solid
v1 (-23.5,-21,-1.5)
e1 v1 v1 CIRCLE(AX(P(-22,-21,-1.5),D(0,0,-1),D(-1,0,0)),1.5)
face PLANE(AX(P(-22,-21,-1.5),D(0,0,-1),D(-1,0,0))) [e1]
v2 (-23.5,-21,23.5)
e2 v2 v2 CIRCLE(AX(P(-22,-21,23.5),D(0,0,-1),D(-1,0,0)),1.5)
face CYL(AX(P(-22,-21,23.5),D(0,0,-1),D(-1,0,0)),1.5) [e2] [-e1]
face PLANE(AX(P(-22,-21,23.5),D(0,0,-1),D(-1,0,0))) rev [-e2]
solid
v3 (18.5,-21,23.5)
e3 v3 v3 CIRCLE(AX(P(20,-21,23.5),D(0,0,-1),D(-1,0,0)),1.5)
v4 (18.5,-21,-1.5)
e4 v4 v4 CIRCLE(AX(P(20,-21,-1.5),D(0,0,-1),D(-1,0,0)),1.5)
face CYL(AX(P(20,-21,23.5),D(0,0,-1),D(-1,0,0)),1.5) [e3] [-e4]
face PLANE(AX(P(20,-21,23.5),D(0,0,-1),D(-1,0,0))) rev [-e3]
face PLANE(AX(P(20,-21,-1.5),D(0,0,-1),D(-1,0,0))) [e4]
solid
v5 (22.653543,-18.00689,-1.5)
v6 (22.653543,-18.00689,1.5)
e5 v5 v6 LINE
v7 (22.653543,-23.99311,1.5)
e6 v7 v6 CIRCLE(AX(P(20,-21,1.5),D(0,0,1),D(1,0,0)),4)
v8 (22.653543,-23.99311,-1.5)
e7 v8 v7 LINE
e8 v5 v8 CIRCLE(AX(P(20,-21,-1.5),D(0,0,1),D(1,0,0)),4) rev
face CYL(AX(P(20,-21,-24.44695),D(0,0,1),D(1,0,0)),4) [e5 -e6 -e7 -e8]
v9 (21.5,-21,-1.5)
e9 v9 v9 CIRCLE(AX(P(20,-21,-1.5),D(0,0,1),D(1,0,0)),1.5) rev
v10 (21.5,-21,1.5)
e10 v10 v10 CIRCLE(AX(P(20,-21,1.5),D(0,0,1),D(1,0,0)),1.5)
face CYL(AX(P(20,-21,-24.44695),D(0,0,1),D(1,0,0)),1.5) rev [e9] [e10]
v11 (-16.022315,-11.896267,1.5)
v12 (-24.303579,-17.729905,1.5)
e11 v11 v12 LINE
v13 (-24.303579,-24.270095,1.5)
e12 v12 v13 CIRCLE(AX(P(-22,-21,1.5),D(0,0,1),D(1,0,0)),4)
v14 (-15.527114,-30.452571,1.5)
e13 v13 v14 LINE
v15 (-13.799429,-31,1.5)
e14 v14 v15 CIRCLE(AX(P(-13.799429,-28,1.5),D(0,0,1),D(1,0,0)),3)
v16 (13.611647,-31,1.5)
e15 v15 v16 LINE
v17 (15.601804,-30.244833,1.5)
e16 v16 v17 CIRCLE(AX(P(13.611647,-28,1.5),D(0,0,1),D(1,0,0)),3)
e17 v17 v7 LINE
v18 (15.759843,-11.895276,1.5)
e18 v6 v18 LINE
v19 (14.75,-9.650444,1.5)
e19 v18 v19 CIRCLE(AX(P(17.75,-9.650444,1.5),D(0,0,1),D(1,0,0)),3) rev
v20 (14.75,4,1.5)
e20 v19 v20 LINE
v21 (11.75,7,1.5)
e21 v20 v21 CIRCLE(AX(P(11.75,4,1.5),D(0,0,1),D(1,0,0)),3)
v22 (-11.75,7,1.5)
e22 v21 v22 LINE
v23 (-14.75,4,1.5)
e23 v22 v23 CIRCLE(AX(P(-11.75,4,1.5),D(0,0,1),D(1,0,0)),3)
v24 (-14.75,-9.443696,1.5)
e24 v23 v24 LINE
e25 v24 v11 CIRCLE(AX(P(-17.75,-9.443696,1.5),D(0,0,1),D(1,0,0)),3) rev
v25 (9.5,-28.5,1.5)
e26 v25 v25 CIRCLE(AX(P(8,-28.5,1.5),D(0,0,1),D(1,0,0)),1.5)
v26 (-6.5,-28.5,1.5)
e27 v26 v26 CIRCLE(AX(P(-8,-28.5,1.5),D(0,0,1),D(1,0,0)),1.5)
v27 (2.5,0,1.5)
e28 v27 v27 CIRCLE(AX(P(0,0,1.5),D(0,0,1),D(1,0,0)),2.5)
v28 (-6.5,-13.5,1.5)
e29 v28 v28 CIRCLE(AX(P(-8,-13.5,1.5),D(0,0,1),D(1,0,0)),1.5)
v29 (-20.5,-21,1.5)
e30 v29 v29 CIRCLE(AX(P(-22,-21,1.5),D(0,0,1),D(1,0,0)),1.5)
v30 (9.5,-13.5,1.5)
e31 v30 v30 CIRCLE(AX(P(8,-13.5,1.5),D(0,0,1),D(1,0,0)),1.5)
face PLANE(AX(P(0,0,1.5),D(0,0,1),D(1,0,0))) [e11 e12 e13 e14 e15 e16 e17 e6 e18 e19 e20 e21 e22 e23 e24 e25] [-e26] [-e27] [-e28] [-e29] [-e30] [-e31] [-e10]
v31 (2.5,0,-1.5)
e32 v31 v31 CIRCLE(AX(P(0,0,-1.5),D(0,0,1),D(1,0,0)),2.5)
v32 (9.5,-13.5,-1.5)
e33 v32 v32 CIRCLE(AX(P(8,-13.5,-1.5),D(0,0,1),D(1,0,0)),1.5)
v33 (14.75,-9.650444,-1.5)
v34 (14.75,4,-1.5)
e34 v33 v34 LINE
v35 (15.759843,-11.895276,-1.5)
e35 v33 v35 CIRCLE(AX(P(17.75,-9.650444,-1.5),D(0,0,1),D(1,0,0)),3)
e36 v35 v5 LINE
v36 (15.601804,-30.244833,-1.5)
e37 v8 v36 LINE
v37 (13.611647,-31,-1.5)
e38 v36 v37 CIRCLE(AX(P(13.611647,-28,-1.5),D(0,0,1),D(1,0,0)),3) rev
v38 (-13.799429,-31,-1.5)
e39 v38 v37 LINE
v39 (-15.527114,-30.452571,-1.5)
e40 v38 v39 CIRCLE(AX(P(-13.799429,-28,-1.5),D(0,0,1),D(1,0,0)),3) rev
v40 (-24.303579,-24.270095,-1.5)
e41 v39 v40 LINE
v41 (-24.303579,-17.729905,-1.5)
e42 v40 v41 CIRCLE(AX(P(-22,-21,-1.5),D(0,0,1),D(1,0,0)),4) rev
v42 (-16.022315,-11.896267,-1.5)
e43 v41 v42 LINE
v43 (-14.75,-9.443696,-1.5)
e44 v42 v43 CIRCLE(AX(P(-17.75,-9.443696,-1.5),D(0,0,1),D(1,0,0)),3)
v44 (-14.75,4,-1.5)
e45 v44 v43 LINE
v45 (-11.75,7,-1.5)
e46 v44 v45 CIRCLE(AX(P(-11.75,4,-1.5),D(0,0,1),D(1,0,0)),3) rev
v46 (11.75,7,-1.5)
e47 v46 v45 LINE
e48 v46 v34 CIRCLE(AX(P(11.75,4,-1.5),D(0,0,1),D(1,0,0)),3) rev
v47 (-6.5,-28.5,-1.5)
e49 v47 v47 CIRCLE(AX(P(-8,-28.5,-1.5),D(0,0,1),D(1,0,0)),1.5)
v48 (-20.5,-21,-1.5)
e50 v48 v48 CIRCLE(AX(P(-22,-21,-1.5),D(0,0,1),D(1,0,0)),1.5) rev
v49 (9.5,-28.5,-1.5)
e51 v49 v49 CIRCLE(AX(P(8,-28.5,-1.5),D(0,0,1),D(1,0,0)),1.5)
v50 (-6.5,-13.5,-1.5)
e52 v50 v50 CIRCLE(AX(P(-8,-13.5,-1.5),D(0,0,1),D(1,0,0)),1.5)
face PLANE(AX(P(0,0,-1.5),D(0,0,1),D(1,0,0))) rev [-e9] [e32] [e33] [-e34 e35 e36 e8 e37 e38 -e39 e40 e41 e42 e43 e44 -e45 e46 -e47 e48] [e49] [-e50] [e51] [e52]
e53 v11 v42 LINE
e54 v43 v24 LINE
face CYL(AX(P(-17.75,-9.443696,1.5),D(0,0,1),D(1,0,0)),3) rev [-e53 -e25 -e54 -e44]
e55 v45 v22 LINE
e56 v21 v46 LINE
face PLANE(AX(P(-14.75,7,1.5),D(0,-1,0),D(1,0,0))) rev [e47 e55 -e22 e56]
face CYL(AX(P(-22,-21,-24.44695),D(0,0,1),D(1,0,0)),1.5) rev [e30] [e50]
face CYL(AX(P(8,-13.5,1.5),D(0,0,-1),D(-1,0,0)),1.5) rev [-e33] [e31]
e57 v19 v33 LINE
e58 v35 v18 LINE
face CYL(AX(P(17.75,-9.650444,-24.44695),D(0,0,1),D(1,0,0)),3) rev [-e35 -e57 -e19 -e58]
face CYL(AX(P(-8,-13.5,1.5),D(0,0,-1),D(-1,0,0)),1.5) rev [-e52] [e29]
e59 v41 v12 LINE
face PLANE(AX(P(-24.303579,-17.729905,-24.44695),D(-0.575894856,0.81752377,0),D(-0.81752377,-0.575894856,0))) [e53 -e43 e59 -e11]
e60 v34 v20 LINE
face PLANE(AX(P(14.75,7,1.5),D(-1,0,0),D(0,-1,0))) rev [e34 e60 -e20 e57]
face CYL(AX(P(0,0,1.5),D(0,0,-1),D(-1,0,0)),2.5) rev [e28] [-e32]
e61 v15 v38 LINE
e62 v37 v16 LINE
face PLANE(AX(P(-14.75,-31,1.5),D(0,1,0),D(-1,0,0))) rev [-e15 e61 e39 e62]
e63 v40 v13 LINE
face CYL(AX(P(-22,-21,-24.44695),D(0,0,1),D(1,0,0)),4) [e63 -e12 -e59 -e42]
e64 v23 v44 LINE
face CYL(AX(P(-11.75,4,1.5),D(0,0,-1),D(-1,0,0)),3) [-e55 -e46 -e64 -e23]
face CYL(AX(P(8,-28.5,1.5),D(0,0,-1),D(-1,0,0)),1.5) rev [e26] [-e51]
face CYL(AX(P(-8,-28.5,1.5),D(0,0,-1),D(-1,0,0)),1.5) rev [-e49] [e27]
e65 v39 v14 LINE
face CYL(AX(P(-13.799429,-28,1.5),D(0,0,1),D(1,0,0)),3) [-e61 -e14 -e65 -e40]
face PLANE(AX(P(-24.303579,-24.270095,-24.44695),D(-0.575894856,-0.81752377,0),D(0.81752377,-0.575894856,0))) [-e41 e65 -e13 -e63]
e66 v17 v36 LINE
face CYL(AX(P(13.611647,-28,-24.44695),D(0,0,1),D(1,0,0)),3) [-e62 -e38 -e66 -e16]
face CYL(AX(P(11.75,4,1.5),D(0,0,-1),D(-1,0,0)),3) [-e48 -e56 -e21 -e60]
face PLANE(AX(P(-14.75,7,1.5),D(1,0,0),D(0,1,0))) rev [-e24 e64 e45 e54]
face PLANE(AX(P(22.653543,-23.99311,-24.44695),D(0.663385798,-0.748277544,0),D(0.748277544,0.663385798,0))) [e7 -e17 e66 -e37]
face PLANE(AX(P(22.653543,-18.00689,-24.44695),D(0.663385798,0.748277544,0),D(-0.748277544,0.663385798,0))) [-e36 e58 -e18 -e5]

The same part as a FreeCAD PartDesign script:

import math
import FreeCAD as App
import Part
import Sketcher
Q = App.Units.Quantity


def edges_at(feature, points):
    """Names of the edges that pass closest to the given points."""
    edges = feature.Shape.Edges
    near = lambda p: min(range(len(edges)), key=lambda i: edges[i].distToShape(Part.Vertex(*p))[0])
    return sorted({f"Edge{near(p) + 1}" for p in points})


def add_polygon(sketch, points):
    """Adds a closed chain of lines whose ends are joined by coincident constraints."""
    first, n = sketch.GeometryCount, len(points)
    for a, b in zip(points, points[1:] + points[:1]):
        sketch.addGeometry(Part.LineSegment(App.Vector(*a, 0), App.Vector(*b, 0)), False)
    for i in range(n):
        sketch.addConstraint(Sketcher.Constraint("Coincident", first + i, 2, first + (i + 1) % n, 1))

doc = App.newDocument("Part")
body = doc.addObject("PartDesign::Body", "Body")

# Sketch on XY plane
sketch1 = body.newObject("Sketcher::SketchObject", "Sketch")
sketch1.AttachmentSupport = (doc.getObject("XY_Plane"), [""])
sketch1.MapMode = "FlatFace"
add_polygon(sketch1, [(-14.8, 7), (-14.8, -31), (14.8, -31), (14.8, 7)])  # lines 0-3
sketch1.addGeometry(Part.Circle(App.Vector(-8, -28.5, 0), App.Vector(0, 0, 1), 1.5), False)  # 4
sketch1.addGeometry(Part.Circle(App.Vector(8, -28.5, 0), App.Vector(0, 0, 1), 1.5), False)  # 5
sketch1.addGeometry(Part.Circle(App.Vector(-8, -13.5, 0), App.Vector(0, 0, 1), 1.5), False)  # 6
sketch1.addGeometry(Part.Circle(App.Vector(8, -13.5, 0), App.Vector(0, 0, 1), 1.5), False)  # 7
sketch1.addGeometry(Part.Circle(App.Vector(0, 0, 0), App.Vector(0, 0, 1), 2.5), False)  # 8
sketch1.addConstraint(Sketcher.Constraint("Vertical", 0))
sketch1.addConstraint(Sketcher.Constraint("Horizontal", 1))
sketch1.addConstraint(Sketcher.Constraint("Vertical", 2))
sketch1.addConstraint(Sketcher.Constraint("Horizontal", 3))
sketch1.addConstraint(Sketcher.Constraint("Coincident", 8, 3, -1, 1))
sketch1.addConstraint(Sketcher.Constraint("Equal", 4, 5))
sketch1.addConstraint(Sketcher.Constraint("Equal", 5, 6))
sketch1.addConstraint(Sketcher.Constraint("Equal", 6, 7))
sketch1.addConstraint(Sketcher.Constraint("Symmetric", 4, 3, 5, 3, -2))
sketch1.addConstraint(Sketcher.Constraint("Symmetric", 6, 3, 7, 3, -2))
sketch1.addConstraint(Sketcher.Constraint("Vertical", 4, 3, 6, 3))
sketch1.addConstraint(Sketcher.Constraint("Diameter", 4, Q("3 mm")))
sketch1.addConstraint(Sketcher.Constraint("Diameter", 8, Q("5 mm")))
sketch1.addConstraint(Sketcher.Constraint("DistanceY", 0, 2, 0, 1, Q("38 mm")))
sketch1.addConstraint(Sketcher.Constraint("DistanceX", 1, 1, 1, 2, Q("29.5 mm")))
sketch1.addConstraint(Sketcher.Constraint("DistanceX", 4, 3, -1, 1, Q("8 mm")))
sketch1.addConstraint(Sketcher.Constraint("DistanceY", 0, 2, -1, 1, Q("31 mm")))
sketch1.addConstraint(Sketcher.Constraint("DistanceY", 4, 3, 6, 3, Q("15 mm")))
sketch1.addConstraint(Sketcher.Constraint("DistanceY", 4, 3, -1, 1, Q("28.5 mm")))
sketch1.addConstraint(Sketcher.Constraint("DistanceX", 0, 2, -1, 1, Q("14.75 mm")))
pad1 = body.newObject("PartDesign::Pad", "Pad")
pad1.Profile = sketch1
pad1.Length = 3
pad1.Midplane = True

# Sketch on XY plane
sketch2 = body.newObject("Sketcher::SketchObject", "Sketch001")
sketch2.AttachmentSupport = (doc.getObject("XY_Plane"), [""])
sketch2.MapMode = "FlatFace"
sketch2.AttachmentOffset = App.Placement(App.Vector(0, 0, 1.5), App.Rotation())
sketch2.addGeometry(Part.LineSegment(App.Vector(-24.3, -24.3, 0), App.Vector(-14.8, -31, 0)), False)
sketch2.addGeometry(Part.LineSegment(App.Vector(-14.8, -31, 0), App.Vector(-14.8, -11, 0)), False)
sketch2.addGeometry(Part.LineSegment(App.Vector(-14.8, -11, 0), App.Vector(-24.3, -17.7, 0)), False)
sketch2.addGeometry(Part.ArcOfCircle(Part.Circle(App.Vector(-22, -21, 0), App.Vector(0, 0, 1), 4), math.radians(125), math.radians(235)), False)
sketch2.addGeometry(Part.Circle(App.Vector(-22, -21, 0), App.Vector(0, 0, 1), 1.5), False)
sketch2.addGeometry(Part.LineSegment(App.Vector(14.8, -31, 0), App.Vector(22.7, -24, 0)), False)
sketch2.addGeometry(Part.ArcOfCircle(Part.Circle(App.Vector(20, -21, 0), App.Vector(0, 0, 1), 4), math.radians(-48), math.radians(48)), False)
sketch2.addGeometry(Part.LineSegment(App.Vector(22.7, -18, 0), App.Vector(14.8, -11, 0)), False)
sketch2.addGeometry(Part.LineSegment(App.Vector(14.8, -11, 0), App.Vector(14.8, -31, 0)), False)
sketch2.addGeometry(Part.Circle(App.Vector(20, -21, 0), App.Vector(0, 0, 1), 1.5), False)
sketch2.addConstraint(Sketcher.Constraint("Coincident", 0, 2, 1, 1))
sketch2.addConstraint(Sketcher.Constraint("Coincident", 1, 2, 2, 1))
sketch2.addConstraint(Sketcher.Constraint("Tangent", 2, 2, 3, 1))
sketch2.addConstraint(Sketcher.Constraint("Tangent", 3, 2, 0, 1))
sketch2.addConstraint(Sketcher.Constraint("Tangent", 5, 2, 6, 1))
sketch2.addConstraint(Sketcher.Constraint("Tangent", 6, 2, 7, 1))
sketch2.addConstraint(Sketcher.Constraint("Coincident", 7, 2, 8, 1))
sketch2.addConstraint(Sketcher.Constraint("Coincident", 8, 2, 5, 1))
sketch2.addConstraint(Sketcher.Constraint("Vertical", 1))
sketch2.addConstraint(Sketcher.Constraint("Vertical", 8))
sketch2.addConstraint(Sketcher.Constraint("Coincident", 4, 3, 3, 3))
sketch2.addConstraint(Sketcher.Constraint("Coincident", 9, 3, 6, 3))
sketch2.addConstraint(Sketcher.Constraint("Equal", 3, 6))
sketch2.addConstraint(Sketcher.Constraint("Equal", 4, 9))
sketch2.addConstraint(Sketcher.Constraint("Symmetric", 1, 2, 7, 2, -2))
sketch2.addConstraint(Sketcher.Constraint("Horizontal", 4, 3, 6, 3))
sketch2.addConstraint(Sketcher.Constraint("Horizontal", 0, 2, 8, 2))
sketch2.addConstraint(Sketcher.Constraint("Vertical", 2, 2, 3, 2))
sketch2.addConstraint(Sketcher.Constraint("Diameter", 4, Q("3 mm")))
sketch2.addConstraint(Sketcher.Constraint("Radius", 3, Q("4 mm")))
sketch2.addConstraint(Sketcher.Constraint("DistanceY", 1, 1, 1, 2, Q("20 mm")))
sketch2.addConstraint(Sketcher.Constraint("DistanceX", 3, 3, -1, 1, Q("22 mm")))
sketch2.addConstraint(Sketcher.Constraint("DistanceY", 3, 3, -1, 1, Q("21 mm")))
sketch2.addConstraint(Sketcher.Constraint("DistanceX", -1, 1, 6, 3, Q("20 mm")))
sketch2.addConstraint(Sketcher.Constraint("DistanceX", 1, 2, 7, 2, Q("29.5 mm")))
pad2 = body.newObject("PartDesign::Pad", "Pad001")
pad2.Profile = sketch2
pad2.Length = 3
pad2.Reversed = True
doc.recompute()

fillet = body.newObject("PartDesign::Fillet", "Fillet")
fillet.Base = (pad2, edges_at(pad2, [
    (-14.75, -11, 0),
    (14.75, -11, 0),
    (-14.75, 7, 0),
    (14.75, 7, 0),
    (14.75, -31, 0),
    (-14.75, -31, 0),
]))
fillet.Radius = 3
body2 = doc.addObject("PartDesign::Body", "Body001")

# Sketch on XY plane
sketch3 = body2.newObject("Sketcher::SketchObject", "Sketch002")
sketch3.AttachmentSupport = (doc.getObject("XY_Plane001"), [""])
sketch3.MapMode = "FlatFace"
sketch3.AttachmentOffset = App.Placement(App.Vector(0, 0, -1.5), App.Rotation())
sketch3.addGeometry(Part.Circle(App.Vector(-22, -21, 0), App.Vector(0, 0, 1), 1.5), False)
sketch3.addConstraint(Sketcher.Constraint("Diameter", 0, Q("3 mm")))
sketch3.addConstraint(Sketcher.Constraint("DistanceX", 0, 3, -1, 1, Q("22 mm")))
sketch3.addConstraint(Sketcher.Constraint("DistanceY", 0, 3, -1, 1, Q("21 mm")))
pad3 = body2.newObject("PartDesign::Pad", "Pad002")
pad3.Profile = sketch3
pad3.Length = 25
body3 = doc.addObject("PartDesign::Body", "Body002")

# Sketch on XY plane
sketch4 = body3.newObject("Sketcher::SketchObject", "Sketch003")
sketch4.AttachmentSupport = (doc.getObject("XY_Plane002"), [""])
sketch4.MapMode = "FlatFace"
sketch4.AttachmentOffset = App.Placement(App.Vector(0, 0, -1.5), App.Rotation())
sketch4.addGeometry(Part.Circle(App.Vector(20, -21, 0), App.Vector(0, 0, 1), 1.5), False)
sketch4.addConstraint(Sketcher.Constraint("Diameter", 0, Q("3 mm")))
sketch4.addConstraint(Sketcher.Constraint("DistanceX", -1, 1, 0, 3, Q("20 mm")))
sketch4.addConstraint(Sketcher.Constraint("DistanceY", 0, 3, -1, 1, Q("21 mm")))
pad4 = body3.newObject("PartDesign::Pad", "Pad003")
pad4.Profile = sketch4
pad4.Length = 25

doc.recompute()
